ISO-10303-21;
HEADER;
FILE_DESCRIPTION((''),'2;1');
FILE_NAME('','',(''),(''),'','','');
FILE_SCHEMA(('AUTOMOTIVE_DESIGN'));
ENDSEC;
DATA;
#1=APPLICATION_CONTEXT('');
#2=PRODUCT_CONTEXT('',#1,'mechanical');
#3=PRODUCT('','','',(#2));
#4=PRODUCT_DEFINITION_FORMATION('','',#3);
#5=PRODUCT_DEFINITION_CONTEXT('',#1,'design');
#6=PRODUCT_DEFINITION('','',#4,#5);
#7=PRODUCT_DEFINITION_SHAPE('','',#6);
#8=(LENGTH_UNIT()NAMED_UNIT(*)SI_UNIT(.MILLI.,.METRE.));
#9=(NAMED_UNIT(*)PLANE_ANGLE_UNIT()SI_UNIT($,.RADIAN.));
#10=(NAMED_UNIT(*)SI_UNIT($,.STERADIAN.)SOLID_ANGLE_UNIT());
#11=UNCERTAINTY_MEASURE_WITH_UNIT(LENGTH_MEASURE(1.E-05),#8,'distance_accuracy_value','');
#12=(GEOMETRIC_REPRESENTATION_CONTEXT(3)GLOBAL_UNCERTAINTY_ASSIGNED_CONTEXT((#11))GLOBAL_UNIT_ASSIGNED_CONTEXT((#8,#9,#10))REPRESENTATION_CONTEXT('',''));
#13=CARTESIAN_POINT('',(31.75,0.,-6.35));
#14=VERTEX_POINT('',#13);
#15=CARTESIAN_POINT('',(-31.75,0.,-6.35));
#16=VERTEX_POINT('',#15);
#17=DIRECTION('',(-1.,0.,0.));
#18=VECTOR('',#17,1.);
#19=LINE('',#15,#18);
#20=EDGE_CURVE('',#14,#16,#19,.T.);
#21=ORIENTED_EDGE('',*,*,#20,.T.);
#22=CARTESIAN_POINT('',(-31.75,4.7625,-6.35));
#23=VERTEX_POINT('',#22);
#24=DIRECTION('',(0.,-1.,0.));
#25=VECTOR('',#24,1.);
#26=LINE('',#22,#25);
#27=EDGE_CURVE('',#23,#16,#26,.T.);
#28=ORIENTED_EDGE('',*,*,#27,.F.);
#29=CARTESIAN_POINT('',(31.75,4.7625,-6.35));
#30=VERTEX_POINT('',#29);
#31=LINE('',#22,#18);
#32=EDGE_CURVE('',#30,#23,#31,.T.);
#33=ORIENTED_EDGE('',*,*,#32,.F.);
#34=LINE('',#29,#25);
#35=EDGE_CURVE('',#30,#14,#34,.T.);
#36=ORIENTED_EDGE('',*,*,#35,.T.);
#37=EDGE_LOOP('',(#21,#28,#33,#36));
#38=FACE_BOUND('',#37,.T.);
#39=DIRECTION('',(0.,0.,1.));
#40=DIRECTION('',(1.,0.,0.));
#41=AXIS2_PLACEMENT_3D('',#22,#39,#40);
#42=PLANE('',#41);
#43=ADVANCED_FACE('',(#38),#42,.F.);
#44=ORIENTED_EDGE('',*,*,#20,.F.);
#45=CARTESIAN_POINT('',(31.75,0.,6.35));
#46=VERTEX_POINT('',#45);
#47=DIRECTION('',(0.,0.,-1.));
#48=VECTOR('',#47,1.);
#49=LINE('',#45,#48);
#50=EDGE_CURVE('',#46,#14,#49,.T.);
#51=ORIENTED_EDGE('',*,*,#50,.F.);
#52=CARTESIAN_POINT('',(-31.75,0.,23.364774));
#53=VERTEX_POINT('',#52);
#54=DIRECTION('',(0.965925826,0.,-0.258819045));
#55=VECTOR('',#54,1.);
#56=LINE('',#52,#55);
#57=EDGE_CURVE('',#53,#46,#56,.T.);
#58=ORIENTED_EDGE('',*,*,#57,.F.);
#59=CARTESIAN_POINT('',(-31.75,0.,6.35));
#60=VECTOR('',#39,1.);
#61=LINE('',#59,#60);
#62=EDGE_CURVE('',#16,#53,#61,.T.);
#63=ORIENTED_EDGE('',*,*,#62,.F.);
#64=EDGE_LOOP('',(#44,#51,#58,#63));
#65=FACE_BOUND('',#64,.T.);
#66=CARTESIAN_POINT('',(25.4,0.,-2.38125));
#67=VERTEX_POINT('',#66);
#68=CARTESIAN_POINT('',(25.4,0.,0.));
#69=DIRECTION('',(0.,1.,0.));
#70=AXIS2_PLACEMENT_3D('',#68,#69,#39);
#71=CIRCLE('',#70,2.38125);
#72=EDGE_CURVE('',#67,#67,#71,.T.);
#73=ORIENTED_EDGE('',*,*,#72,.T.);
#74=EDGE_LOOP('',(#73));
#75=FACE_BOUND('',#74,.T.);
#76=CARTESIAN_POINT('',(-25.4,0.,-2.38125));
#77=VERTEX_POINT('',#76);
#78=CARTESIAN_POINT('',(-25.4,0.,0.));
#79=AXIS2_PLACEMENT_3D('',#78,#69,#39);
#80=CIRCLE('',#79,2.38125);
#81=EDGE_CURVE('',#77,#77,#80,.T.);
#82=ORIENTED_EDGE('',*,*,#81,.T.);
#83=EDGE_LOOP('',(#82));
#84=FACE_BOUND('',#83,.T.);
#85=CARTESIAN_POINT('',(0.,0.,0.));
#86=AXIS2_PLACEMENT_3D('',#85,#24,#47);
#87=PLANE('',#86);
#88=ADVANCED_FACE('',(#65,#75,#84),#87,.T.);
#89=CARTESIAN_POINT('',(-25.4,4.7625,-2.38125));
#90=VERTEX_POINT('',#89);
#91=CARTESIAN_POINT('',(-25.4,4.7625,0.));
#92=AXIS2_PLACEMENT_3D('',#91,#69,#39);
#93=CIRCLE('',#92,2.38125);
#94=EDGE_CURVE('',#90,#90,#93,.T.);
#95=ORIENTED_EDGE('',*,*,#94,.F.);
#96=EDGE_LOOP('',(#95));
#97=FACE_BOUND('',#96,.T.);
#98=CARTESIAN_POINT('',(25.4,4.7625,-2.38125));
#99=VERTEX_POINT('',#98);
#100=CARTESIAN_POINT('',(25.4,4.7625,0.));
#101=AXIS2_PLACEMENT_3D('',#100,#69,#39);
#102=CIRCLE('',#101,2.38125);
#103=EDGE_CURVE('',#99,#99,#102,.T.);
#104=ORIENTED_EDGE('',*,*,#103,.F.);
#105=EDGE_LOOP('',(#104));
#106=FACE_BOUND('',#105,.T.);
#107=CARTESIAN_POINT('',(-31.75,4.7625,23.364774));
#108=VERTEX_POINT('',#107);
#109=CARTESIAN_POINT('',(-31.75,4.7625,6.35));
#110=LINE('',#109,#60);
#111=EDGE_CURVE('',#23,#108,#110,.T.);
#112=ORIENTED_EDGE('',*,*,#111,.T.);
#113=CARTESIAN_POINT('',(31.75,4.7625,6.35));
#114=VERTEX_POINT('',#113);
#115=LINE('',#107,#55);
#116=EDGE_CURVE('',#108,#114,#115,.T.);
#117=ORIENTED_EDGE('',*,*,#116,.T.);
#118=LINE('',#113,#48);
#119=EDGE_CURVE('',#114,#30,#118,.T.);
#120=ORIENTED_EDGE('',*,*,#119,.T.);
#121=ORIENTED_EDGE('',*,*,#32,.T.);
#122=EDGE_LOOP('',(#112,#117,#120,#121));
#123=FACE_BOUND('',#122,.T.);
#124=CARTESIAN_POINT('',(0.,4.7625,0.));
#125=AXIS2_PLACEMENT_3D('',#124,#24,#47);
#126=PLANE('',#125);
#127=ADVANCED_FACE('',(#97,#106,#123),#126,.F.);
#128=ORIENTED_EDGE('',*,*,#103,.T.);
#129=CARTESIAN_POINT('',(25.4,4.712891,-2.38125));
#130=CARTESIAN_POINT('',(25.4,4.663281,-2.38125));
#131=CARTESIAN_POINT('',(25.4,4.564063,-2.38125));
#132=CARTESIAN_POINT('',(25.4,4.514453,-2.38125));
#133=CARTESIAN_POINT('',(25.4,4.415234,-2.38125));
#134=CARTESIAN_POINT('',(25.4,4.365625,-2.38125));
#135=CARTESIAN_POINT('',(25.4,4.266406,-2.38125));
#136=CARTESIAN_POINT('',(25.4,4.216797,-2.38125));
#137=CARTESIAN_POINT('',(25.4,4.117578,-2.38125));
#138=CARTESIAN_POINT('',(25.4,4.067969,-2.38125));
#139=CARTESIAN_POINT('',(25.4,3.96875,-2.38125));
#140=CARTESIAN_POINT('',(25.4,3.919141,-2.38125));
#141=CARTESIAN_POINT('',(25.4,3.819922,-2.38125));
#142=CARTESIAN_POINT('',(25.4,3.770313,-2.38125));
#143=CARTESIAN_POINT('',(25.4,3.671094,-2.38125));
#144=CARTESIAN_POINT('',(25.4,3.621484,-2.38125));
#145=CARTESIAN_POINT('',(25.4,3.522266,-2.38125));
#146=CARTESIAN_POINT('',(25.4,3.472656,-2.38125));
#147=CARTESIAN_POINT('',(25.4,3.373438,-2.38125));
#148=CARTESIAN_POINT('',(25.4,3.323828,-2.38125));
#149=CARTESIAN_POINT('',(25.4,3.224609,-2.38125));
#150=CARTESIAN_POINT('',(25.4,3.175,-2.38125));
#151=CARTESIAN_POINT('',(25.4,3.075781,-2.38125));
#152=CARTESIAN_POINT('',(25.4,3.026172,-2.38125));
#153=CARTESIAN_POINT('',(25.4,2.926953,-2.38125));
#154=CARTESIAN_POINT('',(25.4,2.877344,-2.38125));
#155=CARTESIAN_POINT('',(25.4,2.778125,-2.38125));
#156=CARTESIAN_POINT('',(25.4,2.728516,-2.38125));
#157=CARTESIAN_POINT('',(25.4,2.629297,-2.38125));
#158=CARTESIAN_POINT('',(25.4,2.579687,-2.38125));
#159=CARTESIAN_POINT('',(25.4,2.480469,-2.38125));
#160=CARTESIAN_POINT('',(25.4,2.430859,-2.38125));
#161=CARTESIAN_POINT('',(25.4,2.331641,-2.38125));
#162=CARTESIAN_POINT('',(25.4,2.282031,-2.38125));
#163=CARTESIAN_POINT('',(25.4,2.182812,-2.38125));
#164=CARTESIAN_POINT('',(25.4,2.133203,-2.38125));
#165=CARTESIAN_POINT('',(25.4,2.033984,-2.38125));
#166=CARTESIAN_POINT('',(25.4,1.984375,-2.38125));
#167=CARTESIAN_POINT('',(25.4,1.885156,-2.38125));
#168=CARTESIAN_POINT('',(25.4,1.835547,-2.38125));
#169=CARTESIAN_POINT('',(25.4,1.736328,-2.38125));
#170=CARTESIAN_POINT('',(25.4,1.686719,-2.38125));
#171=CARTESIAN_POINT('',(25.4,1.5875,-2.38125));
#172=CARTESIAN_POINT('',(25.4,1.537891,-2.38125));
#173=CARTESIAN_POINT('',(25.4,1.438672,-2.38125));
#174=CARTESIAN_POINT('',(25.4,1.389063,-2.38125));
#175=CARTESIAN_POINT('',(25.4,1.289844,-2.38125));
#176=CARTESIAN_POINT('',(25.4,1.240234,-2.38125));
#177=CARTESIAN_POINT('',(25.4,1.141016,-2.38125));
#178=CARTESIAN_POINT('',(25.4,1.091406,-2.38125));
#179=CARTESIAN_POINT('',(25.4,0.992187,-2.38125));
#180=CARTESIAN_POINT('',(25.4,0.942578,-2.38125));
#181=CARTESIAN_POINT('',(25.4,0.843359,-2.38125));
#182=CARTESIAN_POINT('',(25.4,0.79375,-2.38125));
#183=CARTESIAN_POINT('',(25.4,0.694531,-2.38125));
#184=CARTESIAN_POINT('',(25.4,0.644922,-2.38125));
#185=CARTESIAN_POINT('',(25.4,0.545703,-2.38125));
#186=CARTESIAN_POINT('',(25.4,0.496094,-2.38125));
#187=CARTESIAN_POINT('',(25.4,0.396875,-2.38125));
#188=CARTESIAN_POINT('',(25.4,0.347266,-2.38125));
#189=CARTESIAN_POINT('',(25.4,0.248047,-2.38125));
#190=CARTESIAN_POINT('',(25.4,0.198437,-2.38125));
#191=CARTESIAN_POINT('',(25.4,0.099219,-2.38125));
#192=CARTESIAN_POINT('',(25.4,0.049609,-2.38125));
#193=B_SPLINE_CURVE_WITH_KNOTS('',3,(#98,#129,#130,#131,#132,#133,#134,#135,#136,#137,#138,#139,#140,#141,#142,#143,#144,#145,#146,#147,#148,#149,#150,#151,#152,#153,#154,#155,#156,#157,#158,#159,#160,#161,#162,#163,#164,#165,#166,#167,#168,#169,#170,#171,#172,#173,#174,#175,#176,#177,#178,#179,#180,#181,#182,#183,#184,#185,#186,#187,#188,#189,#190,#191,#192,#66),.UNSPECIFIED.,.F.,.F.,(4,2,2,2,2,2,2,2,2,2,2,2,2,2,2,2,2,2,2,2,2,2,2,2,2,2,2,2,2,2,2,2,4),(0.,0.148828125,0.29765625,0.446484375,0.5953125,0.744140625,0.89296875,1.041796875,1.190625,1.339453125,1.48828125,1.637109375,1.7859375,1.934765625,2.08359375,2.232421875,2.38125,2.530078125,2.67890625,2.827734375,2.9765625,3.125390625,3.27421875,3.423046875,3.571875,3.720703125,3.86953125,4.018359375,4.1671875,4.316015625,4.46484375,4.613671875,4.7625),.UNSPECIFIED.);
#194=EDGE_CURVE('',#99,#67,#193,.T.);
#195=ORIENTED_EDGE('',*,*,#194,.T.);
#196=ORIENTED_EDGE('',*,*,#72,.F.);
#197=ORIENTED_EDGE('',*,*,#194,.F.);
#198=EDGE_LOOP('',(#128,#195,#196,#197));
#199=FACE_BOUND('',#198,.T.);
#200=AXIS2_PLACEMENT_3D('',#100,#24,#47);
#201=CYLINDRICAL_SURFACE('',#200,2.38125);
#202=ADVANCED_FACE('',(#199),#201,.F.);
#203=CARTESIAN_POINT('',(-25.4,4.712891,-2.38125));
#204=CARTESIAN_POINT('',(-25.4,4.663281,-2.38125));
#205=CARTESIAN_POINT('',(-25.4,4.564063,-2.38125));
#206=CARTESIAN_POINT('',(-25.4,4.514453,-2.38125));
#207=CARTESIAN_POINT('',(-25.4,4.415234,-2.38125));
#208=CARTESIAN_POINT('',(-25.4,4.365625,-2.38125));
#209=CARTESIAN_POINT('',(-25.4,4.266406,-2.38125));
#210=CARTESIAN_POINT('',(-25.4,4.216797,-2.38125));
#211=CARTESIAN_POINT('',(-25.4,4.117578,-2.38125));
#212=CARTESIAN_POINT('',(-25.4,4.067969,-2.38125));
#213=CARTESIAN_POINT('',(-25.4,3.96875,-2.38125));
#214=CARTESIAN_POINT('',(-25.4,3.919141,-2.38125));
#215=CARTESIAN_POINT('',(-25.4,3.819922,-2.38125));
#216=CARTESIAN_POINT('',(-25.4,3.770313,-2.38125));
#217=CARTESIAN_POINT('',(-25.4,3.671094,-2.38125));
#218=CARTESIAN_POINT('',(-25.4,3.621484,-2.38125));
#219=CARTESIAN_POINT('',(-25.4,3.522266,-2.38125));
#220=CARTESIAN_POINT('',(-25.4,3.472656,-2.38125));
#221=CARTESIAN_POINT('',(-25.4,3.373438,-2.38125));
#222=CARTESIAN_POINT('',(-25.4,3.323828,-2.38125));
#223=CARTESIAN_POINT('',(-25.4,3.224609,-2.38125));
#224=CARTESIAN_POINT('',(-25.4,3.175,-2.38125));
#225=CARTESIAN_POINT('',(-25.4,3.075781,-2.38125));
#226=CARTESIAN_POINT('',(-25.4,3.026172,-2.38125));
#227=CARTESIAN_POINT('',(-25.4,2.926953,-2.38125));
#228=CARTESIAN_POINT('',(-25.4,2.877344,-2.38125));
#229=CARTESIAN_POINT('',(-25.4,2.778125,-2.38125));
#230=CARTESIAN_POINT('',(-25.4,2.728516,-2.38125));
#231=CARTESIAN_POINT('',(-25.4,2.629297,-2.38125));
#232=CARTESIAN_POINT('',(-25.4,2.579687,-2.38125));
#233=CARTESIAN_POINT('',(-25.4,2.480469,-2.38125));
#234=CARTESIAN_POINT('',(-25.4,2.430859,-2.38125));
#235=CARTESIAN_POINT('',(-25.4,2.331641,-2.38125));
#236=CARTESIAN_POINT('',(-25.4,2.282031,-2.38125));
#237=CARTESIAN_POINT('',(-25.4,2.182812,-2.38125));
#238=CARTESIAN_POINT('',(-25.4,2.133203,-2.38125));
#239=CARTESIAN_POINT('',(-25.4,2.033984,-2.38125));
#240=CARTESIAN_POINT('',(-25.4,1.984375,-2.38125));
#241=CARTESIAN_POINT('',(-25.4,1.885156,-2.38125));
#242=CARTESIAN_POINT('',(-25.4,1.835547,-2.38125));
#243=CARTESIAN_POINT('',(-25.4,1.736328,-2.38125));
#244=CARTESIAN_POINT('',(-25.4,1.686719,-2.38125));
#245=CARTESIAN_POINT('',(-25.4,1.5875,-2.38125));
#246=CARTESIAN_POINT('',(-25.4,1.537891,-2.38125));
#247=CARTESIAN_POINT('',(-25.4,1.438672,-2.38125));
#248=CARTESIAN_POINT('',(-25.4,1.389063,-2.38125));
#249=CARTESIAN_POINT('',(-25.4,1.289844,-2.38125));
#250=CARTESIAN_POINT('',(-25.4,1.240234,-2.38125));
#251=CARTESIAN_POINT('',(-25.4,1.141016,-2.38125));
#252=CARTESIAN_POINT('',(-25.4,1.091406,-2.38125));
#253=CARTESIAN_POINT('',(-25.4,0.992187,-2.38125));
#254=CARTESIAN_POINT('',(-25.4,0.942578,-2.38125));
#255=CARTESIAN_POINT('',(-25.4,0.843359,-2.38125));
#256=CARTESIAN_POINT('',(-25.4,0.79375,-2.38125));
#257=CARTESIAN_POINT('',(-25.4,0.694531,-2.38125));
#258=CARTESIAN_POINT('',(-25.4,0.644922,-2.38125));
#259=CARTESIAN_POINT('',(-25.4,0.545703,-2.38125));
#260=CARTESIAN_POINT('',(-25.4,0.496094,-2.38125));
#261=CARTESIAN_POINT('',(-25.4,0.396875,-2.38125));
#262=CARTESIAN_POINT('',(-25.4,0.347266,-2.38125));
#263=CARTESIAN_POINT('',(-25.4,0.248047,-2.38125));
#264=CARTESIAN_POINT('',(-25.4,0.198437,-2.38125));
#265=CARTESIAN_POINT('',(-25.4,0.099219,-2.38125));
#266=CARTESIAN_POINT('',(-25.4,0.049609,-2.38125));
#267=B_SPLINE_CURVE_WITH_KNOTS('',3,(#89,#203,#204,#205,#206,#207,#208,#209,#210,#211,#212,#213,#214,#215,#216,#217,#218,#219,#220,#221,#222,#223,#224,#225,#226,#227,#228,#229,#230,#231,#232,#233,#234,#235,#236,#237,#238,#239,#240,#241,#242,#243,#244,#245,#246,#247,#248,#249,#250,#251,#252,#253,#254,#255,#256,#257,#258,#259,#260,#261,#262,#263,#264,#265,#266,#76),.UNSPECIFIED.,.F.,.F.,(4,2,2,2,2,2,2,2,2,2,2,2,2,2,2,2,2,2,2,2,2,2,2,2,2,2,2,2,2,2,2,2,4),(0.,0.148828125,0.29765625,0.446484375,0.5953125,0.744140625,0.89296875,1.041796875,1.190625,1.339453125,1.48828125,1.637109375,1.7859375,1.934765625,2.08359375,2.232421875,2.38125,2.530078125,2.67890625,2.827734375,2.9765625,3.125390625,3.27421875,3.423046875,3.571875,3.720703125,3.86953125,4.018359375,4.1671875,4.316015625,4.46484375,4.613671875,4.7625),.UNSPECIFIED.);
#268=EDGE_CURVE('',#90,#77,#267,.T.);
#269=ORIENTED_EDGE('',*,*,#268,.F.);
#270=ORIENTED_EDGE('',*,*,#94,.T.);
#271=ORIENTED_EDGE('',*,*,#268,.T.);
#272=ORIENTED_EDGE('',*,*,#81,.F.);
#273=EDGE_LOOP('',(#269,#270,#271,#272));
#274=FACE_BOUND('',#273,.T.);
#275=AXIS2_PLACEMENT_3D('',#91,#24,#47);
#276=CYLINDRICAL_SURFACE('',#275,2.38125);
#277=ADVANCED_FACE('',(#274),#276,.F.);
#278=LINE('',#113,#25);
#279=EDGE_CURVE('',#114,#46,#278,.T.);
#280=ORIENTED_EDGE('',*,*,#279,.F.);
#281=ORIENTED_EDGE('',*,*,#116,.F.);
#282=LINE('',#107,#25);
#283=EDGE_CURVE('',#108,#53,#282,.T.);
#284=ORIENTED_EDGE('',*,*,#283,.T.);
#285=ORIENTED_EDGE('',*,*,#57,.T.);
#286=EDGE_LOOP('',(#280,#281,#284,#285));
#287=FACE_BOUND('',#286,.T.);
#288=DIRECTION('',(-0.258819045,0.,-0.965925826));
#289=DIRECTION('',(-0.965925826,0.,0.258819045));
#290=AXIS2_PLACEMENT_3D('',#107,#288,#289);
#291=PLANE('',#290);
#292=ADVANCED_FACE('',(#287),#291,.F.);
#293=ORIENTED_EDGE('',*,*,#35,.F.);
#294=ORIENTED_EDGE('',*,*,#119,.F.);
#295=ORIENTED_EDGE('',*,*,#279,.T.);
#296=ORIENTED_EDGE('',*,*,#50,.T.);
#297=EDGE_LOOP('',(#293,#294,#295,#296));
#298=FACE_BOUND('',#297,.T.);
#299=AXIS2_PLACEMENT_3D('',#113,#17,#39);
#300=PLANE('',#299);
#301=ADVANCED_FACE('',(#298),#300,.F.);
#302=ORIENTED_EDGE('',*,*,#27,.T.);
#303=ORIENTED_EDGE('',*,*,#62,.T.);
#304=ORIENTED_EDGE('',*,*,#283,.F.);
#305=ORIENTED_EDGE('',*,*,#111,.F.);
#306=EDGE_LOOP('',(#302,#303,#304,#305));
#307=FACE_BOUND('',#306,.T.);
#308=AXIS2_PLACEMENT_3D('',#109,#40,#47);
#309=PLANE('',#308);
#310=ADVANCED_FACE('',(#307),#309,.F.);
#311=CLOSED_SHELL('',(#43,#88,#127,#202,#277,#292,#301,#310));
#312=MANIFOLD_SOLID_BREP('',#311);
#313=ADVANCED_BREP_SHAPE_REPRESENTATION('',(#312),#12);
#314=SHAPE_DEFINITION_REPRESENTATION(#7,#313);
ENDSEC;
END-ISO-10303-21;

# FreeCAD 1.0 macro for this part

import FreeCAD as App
import Part
import Sketcher

V = App.Vector
Q = App.Units.Quantity


def add_polygon(sketch, points):
    """Adds a closed chain of lines whose ends are joined by coincident constraints."""
    first, n = sketch.GeometryCount, len(points)
    for a, b in zip(points, points[1:] + points[:1]):
        sketch.addGeometry(Part.LineSegment(App.Vector(*a, 0), App.Vector(*b, 0)), False)
    for i in range(n):
        sketch.addConstraint(Sketcher.Constraint("Coincident", first + i, 2, first + (i + 1) % n, 1))

doc = App.newDocument("Part")
params = doc.addObject("Spreadsheet::Sheet", "Params")
for row, (alias, value) in enumerate([
    ("sketch1_diameter", "0.1875 in"),
    ("sketch1_width", "2.5 in"),
    ("sketch1_height", "0.5 in"),
    ("pad1_length", "0.1875 in"),
], start=1):
    params.set(f"A{row}", alias)
    params.set(f"B{row}", "=" + value)
    params.setAlias(f"B{row}", alias)

body = doc.addObject("PartDesign::Body", "Body")

# Sketch on XZ plane
sketch1 = doc.addObject("Sketcher::SketchObject", "Sketch")
body.addObject(sketch1)
sketch1.AttachmentSupport = (doc.XZ_Plane, [""])
sketch1.MapMode = "FlatFace"
add_polygon(sketch1, [(-31.8, -6.3), (-31.8, 23.4), (31.8, 6.3), (31.8, -6.3)])  # lines 0-3
sketch1.addGeometry(Part.Circle(V(25.4, 0, 0), V(0, 0, 1), 2.4), False)  # 4
sketch1.addGeometry(Part.Circle(V(-25.4, 0, 0), V(0, 0, 1), 2.4), False)  # 5
sketch1.addConstraint([
    Sketcher.Constraint("Vertical", 0),
    Sketcher.Constraint("Vertical", 2),
    Sketcher.Constraint("Horizontal", 3),
    Sketcher.Constraint("Equal", 4, 5),
    Sketcher.Constraint("Symmetric", 4, 3, 5, 3, -1, 1),
    Sketcher.Constraint("Symmetric", 1, 2, 3, 2, -1, 1),
    Sketcher.Constraint("PointOnObject", 4, 3, -1),
    Sketcher.Constraint("Diameter", 4, Q("0.1875 in")),
    Sketcher.Constraint("DistanceX", 3, 2, 3, 1, Q("2.5 in")),
    Sketcher.Constraint("DistanceY", 2, 2, 2, 1, Q("0.5 in")),
    Sketcher.Constraint("DistanceX", -1, 1, 4, 3, Q("1 in")),
    Sketcher.Constraint("Angle", 1, Q("-15 deg")),
])
sketch1.setExpression("Constraints[11]", "Params.sketch1_diameter")
sketch1.setExpression("Constraints[12]", "Params.sketch1_width")
sketch1.setExpression("Constraints[13]", "Params.sketch1_height")
pad1 = doc.addObject("PartDesign::Pad", "Pad")
body.addObject(pad1)
pad1.Profile = sketch1
pad1.setExpression("Length", "Params.pad1_length")
pad1.Reversed = True

doc.recompute()
